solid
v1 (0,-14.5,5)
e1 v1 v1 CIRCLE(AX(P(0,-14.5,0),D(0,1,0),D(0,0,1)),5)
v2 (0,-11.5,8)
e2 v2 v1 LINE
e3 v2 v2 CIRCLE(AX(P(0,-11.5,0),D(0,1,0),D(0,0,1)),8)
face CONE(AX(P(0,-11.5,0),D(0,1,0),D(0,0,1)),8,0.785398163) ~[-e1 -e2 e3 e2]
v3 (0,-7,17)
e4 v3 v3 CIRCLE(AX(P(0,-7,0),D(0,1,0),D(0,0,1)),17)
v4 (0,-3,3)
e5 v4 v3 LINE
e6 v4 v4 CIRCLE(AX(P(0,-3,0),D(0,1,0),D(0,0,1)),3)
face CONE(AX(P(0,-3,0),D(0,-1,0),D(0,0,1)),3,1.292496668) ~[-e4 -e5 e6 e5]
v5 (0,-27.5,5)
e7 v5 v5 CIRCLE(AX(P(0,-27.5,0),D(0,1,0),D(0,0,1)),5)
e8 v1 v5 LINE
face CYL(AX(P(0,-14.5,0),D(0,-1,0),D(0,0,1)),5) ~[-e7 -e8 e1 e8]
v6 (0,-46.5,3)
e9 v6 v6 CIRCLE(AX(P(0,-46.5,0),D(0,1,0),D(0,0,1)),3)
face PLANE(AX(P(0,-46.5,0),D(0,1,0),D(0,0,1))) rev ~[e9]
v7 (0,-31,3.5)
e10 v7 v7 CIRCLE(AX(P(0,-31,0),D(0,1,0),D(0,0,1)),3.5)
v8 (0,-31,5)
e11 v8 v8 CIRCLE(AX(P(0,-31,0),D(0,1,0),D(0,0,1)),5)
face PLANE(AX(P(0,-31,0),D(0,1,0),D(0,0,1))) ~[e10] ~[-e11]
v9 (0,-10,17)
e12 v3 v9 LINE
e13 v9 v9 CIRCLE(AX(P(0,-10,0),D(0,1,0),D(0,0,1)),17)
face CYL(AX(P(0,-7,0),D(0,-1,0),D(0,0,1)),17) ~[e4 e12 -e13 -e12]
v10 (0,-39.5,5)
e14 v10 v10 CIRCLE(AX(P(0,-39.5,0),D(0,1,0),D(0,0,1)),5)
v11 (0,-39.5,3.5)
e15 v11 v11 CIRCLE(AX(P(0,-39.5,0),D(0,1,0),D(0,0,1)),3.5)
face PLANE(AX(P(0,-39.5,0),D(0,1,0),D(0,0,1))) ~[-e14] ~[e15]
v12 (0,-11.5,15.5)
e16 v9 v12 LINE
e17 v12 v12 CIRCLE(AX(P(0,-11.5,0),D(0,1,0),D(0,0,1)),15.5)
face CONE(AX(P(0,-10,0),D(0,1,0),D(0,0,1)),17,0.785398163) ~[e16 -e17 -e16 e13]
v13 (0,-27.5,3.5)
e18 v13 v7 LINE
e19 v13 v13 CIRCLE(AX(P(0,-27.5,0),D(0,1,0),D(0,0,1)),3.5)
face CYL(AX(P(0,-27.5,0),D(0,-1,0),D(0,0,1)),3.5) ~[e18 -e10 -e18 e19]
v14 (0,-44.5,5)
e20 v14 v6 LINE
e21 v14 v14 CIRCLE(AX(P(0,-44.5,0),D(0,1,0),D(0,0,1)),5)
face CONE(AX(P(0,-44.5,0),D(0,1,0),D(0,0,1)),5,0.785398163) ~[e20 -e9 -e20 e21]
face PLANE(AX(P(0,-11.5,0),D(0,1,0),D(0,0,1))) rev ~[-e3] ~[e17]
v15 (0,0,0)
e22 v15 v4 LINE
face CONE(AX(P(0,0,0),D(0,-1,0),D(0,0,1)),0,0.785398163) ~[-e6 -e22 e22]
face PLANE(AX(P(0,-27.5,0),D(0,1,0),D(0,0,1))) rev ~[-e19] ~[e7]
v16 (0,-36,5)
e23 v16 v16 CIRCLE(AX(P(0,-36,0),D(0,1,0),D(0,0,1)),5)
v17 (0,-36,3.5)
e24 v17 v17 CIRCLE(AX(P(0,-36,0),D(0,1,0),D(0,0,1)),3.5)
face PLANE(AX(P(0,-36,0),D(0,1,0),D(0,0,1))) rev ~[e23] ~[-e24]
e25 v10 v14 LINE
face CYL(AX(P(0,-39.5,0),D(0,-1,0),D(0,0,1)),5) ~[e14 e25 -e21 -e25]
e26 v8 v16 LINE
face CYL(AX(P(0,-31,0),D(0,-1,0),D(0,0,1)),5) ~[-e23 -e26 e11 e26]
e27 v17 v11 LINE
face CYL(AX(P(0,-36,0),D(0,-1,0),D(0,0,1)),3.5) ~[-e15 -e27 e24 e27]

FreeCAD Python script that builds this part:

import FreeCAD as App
import Part
import Sketcher
from FreeCAD import Vector
Q = App.Units.Quantity

doc = App.newDocument("Part")
params = doc.addObject("Spreadsheet::Sheet", "Params")
for row, (alias, value) in enumerate([
    ("sketch1_width", "3 mm"),
    ("sketch1_width2", "13 mm"),
    ("sketch1_width3", "5 mm"),
    ("sketch1_width4", "3.5 mm"),
    ("sketch1_width5", "46.5 mm"),
    ("revolution_angle", "360 deg"),
], start=1):
    params.set(f"A{row}", alias)
    params.set(f"B{row}", "=" + value)
    params.setAlias(f"B{row}", alias)

body = doc.addObject("PartDesign::Body", "Body")

# Sketch on YZ plane
sketch1 = doc.addObject("Sketcher::SketchObject", "Sketch")
body.addObject(sketch1)
sketch1.AttachmentSupport = (doc.YZ_Plane, [""])
sketch1.MapMode = "FlatFace"
sketch1.addGeometry(Part.LineSegment(Vector(-3, 3, 0), Vector(-7, 17, 0)), False)
sketch1.addGeometry(Part.LineSegment(Vector(-7, 17, 0), Vector(-10, 17, 0)), False)
sketch1.addGeometry(Part.LineSegment(Vector(-10, 17, 0), Vector(-11.5, 15.5, 0)), False)
sketch1.addGeometry(Part.LineSegment(Vector(-11.5, 15.5, 0), Vector(-11.5, 8, 0)), False)
sketch1.addGeometry(Part.LineSegment(Vector(-11.5, 8, 0), Vector(-14.5, 5, 0)), False)
sketch1.addGeometry(Part.LineSegment(Vector(-14.5, 5, 0), Vector(-27.5, 5, 0)), False)
sketch1.addGeometry(Part.LineSegment(Vector(-27.5, 5, 0), Vector(-27.5, 3.5, 0)), False)
sketch1.addGeometry(Part.LineSegment(Vector(-27.5, 3.5, 0), Vector(-31, 3.5, 0)), False)
sketch1.addGeometry(Part.LineSegment(Vector(-31, 3.5, 0), Vector(-31, 5, 0)), False)
sketch1.addGeometry(Part.LineSegment(Vector(-31, 5, 0), Vector(-36, 5, 0)), False)
sketch1.addGeometry(Part.LineSegment(Vector(-36, 5, 0), Vector(-36, 3.5, 0)), False)
sketch1.addGeometry(Part.LineSegment(Vector(-36, 3.5, 0), Vector(-39.5, 3.5, 0)), False)
sketch1.addGeometry(Part.LineSegment(Vector(-39.5, 3.5, 0), Vector(-39.5, 5, 0)), False)
sketch1.addGeometry(Part.LineSegment(Vector(-39.5, 5, 0), Vector(-44.5, 5, 0)), False)
sketch1.addGeometry(Part.LineSegment(Vector(-44.5, 5, 0), Vector(-46.5, 3, 0)), False)
sketch1.addGeometry(Part.LineSegment(Vector(-46.5, 3, 0), Vector(-46.5, 0, 0)), False)
sketch1.addGeometry(Part.LineSegment(Vector(-46.5, 0, 0), Vector(0, 0, 0)), False)
sketch1.addGeometry(Part.LineSegment(Vector(0, 0, 0), Vector(-3, 3, 0)), False)
sketch1.addConstraint(Sketcher.Constraint("Coincident", 0, 2, 1, 1))
sketch1.addConstraint(Sketcher.Constraint("Coincident", 1, 2, 2, 1))
sketch1.addConstraint(Sketcher.Constraint("Coincident", 2, 2, 3, 1))
sketch1.addConstraint(Sketcher.Constraint("Coincident", 3, 2, 4, 1))
sketch1.addConstraint(Sketcher.Constraint("Coincident", 4, 2, 5, 1))
sketch1.addConstraint(Sketcher.Constraint("Coincident", 5, 2, 6, 1))
sketch1.addConstraint(Sketcher.Constraint("Coincident", 6, 2, 7, 1))
sketch1.addConstraint(Sketcher.Constraint("Coincident", 7, 2, 8, 1))
sketch1.addConstraint(Sketcher.Constraint("Coincident", 8, 2, 9, 1))
sketch1.addConstraint(Sketcher.Constraint("Coincident", 9, 2, 10, 1))
sketch1.addConstraint(Sketcher.Constraint("Coincident", 10, 2, 11, 1))
sketch1.addConstraint(Sketcher.Constraint("Coincident", 11, 2, 12, 1))
sketch1.addConstraint(Sketcher.Constraint("Coincident", 12, 2, 13, 1))
sketch1.addConstraint(Sketcher.Constraint("Coincident", 13, 2, 14, 1))
sketch1.addConstraint(Sketcher.Constraint("Coincident", 14, 2, 15, 1))
sketch1.addConstraint(Sketcher.Constraint("Coincident", 15, 2, 16, 1))
sketch1.addConstraint(Sketcher.Constraint("Coincident", 16, 2, 17, 1))
sketch1.addConstraint(Sketcher.Constraint("Coincident", 17, 2, 0, 1))
sketch1.addConstraint(Sketcher.Constraint("Horizontal", 1))
sketch1.addConstraint(Sketcher.Constraint("Vertical", 3))
sketch1.addConstraint(Sketcher.Constraint("Horizontal", 5))
sketch1.addConstraint(Sketcher.Constraint("Vertical", 6))
sketch1.addConstraint(Sketcher.Constraint("Horizontal", 7))
sketch1.addConstraint(Sketcher.Constraint("Vertical", 8))
sketch1.addConstraint(Sketcher.Constraint("Horizontal", 9))
sketch1.addConstraint(Sketcher.Constraint("Vertical", 10))
sketch1.addConstraint(Sketcher.Constraint("Horizontal", 11))
sketch1.addConstraint(Sketcher.Constraint("Vertical", 12))
sketch1.addConstraint(Sketcher.Constraint("Horizontal", 13))
sketch1.addConstraint(Sketcher.Constraint("Vertical", 15))
sketch1.addConstraint(Sketcher.Constraint("Horizontal", 16))
sketch1.addConstraint(Sketcher.Constraint("Coincident", 16, 2, -1, 1))
sketch1.addConstraint(Sketcher.Constraint("Parallel", 2, 4))
sketch1.addConstraint(Sketcher.Constraint("Parallel", 4, 14))
sketch1.addConstraint(Sketcher.Constraint("Perpendicular", 14, 17))
sketch1.addConstraint(Sketcher.Constraint("Horizontal", 5, 2, 8, 2))
sketch1.addConstraint(Sketcher.Constraint("Horizontal", 7, 2, 10, 2))
sketch1.addConstraint(Sketcher.Constraint("Horizontal", 9, 2, 12, 2))
sketch1.addConstraint(Sketcher.Constraint("Horizontal", 14, 2, 17, 2))
sketch1.addConstraint(Sketcher.Constraint("Equal", 7, 11))
sketch1.addConstraint(Sketcher.Constraint("Equal", 9, 13))
sketch1.addConstraint(Sketcher.Constraint("Equal", 1, 15))
sketch1.addConstraint(Sketcher.Constraint("Equal", 4, 17))
sketch1.addConstraint(Sketcher.Constraint("DistanceX", 1, 2, 1, 1, Q("3 mm")))
sketch1.addConstraint(Sketcher.Constraint("DistanceX", 5, 2, 5, 1, Q("13 mm")))
sketch1.addConstraint(Sketcher.Constraint("DistanceX", 9, 2, 9, 1, Q("5 mm")))
sketch1.addConstraint(Sketcher.Constraint("Angle", 2, Q("-135 deg")))
sketch1.addConstraint(Sketcher.Constraint("DistanceX", 7, 2, 7, 1, Q("3.5 mm")))
sketch1.addConstraint(Sketcher.Constraint("DistanceX", 16, 1, 16, 2, Q("46.5 mm")))
sketch1.addConstraint(Sketcher.Constraint("DistanceY", 3, 2, 3, 1, Q("7.5 mm")))
sketch1.addConstraint(Sketcher.Constraint("DistanceY", 6, 2, 6, 1, Q("1.5 mm")))
sketch1.addConstraint(Sketcher.Constraint("DistanceX", 0, 2, -1, 1, Q("7 mm")))
sketch1.addConstraint(Sketcher.Constraint("DistanceY", -1, 1, 3, 2, Q("8 mm")))
sketch1.setExpression("Constraints[43]", "Params.sketch1_width")
sketch1.setExpression("Constraints[44]", "Params.sketch1_width2")
sketch1.setExpression("Constraints[45]", "Params.sketch1_width3")
sketch1.setExpression("Constraints[47]", "Params.sketch1_width4")
sketch1.setExpression("Constraints[48]", "Params.sketch1_width5")
revolution = doc.addObject("PartDesign::Revolution", "Revolution")
body.addObject(revolution)
revolution.Profile = sketch1
revolution.ReferenceAxis = (sketch1, ["H_Axis"])
revolution.setExpression("Angle", "Params.revolution_angle")

doc.recompute()
